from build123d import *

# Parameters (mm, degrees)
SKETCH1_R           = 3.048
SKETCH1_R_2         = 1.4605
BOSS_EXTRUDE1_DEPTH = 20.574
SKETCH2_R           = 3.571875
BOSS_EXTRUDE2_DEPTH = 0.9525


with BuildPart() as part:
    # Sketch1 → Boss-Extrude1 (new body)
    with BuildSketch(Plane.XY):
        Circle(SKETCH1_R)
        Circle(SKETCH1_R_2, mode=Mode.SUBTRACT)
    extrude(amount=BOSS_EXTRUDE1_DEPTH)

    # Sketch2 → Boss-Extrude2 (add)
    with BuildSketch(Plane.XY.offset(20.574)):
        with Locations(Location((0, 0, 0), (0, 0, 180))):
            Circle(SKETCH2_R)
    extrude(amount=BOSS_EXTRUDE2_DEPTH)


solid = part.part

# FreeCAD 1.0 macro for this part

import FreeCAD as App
import Part
import Sketcher

V = App.Vector
Q = App.Units.Quantity

doc = App.newDocument("Part")
body = doc.addObject("PartDesign::Body", "Body")

# Sketch on XY plane
sketch1 = body.newObject("Sketcher::SketchObject", "Sketch")
sketch1.AttachmentSupport = (doc.getObject("XY_Plane"), [""])
sketch1.MapMode = "FlatFace"
sketch1.addGeometry(Part.Circle(V(0, 0, 0), V(0, 0, 1), 3.048), False)
sketch1.addGeometry(Part.Circle(V(0, 0, 0), V(0, 0, 1), 1.4605), False)
sketch1.addConstraint(Sketcher.Constraint("Coincident", 0, 3, -1, 1))
sketch1.addConstraint(Sketcher.Constraint("Coincident", 1, 3, -1, 1))
sketch1.addConstraint(Sketcher.Constraint("Diameter", 0, Q("0.24 in")))
sketch1.addConstraint(Sketcher.Constraint("Diameter", 1, Q("0.115 in")))
pad1 = body.newObject("PartDesign::Pad", "Pad")
pad1.Profile = sketch1
pad1.Length = Q("0.81 in")

# Sketch on XY plane
sketch2 = body.newObject("Sketcher::SketchObject", "Sketch001")
sketch2.AttachmentSupport = (doc.getObject("XY_Plane"), [""])
sketch2.MapMode = "FlatFace"
sketch2.AttachmentOffset = App.Placement(V(0, 0, 0.81 * 25.4), App.Rotation())
sketch2.addGeometry(Part.Circle(V(0, 0, 0), V(0, 0, 1), 3.571875), False)
sketch2.addConstraint(Sketcher.Constraint("Coincident", 0, 3, -1, 1))
sketch2.addConstraint(Sketcher.Constraint("Diameter", 0, Q("0.28125 in")))
pad2 = body.newObject("PartDesign::Pad", "Pad001")
pad2.Profile = sketch2
pad2.Length = Q("0.0375 in")

doc.recompute()
